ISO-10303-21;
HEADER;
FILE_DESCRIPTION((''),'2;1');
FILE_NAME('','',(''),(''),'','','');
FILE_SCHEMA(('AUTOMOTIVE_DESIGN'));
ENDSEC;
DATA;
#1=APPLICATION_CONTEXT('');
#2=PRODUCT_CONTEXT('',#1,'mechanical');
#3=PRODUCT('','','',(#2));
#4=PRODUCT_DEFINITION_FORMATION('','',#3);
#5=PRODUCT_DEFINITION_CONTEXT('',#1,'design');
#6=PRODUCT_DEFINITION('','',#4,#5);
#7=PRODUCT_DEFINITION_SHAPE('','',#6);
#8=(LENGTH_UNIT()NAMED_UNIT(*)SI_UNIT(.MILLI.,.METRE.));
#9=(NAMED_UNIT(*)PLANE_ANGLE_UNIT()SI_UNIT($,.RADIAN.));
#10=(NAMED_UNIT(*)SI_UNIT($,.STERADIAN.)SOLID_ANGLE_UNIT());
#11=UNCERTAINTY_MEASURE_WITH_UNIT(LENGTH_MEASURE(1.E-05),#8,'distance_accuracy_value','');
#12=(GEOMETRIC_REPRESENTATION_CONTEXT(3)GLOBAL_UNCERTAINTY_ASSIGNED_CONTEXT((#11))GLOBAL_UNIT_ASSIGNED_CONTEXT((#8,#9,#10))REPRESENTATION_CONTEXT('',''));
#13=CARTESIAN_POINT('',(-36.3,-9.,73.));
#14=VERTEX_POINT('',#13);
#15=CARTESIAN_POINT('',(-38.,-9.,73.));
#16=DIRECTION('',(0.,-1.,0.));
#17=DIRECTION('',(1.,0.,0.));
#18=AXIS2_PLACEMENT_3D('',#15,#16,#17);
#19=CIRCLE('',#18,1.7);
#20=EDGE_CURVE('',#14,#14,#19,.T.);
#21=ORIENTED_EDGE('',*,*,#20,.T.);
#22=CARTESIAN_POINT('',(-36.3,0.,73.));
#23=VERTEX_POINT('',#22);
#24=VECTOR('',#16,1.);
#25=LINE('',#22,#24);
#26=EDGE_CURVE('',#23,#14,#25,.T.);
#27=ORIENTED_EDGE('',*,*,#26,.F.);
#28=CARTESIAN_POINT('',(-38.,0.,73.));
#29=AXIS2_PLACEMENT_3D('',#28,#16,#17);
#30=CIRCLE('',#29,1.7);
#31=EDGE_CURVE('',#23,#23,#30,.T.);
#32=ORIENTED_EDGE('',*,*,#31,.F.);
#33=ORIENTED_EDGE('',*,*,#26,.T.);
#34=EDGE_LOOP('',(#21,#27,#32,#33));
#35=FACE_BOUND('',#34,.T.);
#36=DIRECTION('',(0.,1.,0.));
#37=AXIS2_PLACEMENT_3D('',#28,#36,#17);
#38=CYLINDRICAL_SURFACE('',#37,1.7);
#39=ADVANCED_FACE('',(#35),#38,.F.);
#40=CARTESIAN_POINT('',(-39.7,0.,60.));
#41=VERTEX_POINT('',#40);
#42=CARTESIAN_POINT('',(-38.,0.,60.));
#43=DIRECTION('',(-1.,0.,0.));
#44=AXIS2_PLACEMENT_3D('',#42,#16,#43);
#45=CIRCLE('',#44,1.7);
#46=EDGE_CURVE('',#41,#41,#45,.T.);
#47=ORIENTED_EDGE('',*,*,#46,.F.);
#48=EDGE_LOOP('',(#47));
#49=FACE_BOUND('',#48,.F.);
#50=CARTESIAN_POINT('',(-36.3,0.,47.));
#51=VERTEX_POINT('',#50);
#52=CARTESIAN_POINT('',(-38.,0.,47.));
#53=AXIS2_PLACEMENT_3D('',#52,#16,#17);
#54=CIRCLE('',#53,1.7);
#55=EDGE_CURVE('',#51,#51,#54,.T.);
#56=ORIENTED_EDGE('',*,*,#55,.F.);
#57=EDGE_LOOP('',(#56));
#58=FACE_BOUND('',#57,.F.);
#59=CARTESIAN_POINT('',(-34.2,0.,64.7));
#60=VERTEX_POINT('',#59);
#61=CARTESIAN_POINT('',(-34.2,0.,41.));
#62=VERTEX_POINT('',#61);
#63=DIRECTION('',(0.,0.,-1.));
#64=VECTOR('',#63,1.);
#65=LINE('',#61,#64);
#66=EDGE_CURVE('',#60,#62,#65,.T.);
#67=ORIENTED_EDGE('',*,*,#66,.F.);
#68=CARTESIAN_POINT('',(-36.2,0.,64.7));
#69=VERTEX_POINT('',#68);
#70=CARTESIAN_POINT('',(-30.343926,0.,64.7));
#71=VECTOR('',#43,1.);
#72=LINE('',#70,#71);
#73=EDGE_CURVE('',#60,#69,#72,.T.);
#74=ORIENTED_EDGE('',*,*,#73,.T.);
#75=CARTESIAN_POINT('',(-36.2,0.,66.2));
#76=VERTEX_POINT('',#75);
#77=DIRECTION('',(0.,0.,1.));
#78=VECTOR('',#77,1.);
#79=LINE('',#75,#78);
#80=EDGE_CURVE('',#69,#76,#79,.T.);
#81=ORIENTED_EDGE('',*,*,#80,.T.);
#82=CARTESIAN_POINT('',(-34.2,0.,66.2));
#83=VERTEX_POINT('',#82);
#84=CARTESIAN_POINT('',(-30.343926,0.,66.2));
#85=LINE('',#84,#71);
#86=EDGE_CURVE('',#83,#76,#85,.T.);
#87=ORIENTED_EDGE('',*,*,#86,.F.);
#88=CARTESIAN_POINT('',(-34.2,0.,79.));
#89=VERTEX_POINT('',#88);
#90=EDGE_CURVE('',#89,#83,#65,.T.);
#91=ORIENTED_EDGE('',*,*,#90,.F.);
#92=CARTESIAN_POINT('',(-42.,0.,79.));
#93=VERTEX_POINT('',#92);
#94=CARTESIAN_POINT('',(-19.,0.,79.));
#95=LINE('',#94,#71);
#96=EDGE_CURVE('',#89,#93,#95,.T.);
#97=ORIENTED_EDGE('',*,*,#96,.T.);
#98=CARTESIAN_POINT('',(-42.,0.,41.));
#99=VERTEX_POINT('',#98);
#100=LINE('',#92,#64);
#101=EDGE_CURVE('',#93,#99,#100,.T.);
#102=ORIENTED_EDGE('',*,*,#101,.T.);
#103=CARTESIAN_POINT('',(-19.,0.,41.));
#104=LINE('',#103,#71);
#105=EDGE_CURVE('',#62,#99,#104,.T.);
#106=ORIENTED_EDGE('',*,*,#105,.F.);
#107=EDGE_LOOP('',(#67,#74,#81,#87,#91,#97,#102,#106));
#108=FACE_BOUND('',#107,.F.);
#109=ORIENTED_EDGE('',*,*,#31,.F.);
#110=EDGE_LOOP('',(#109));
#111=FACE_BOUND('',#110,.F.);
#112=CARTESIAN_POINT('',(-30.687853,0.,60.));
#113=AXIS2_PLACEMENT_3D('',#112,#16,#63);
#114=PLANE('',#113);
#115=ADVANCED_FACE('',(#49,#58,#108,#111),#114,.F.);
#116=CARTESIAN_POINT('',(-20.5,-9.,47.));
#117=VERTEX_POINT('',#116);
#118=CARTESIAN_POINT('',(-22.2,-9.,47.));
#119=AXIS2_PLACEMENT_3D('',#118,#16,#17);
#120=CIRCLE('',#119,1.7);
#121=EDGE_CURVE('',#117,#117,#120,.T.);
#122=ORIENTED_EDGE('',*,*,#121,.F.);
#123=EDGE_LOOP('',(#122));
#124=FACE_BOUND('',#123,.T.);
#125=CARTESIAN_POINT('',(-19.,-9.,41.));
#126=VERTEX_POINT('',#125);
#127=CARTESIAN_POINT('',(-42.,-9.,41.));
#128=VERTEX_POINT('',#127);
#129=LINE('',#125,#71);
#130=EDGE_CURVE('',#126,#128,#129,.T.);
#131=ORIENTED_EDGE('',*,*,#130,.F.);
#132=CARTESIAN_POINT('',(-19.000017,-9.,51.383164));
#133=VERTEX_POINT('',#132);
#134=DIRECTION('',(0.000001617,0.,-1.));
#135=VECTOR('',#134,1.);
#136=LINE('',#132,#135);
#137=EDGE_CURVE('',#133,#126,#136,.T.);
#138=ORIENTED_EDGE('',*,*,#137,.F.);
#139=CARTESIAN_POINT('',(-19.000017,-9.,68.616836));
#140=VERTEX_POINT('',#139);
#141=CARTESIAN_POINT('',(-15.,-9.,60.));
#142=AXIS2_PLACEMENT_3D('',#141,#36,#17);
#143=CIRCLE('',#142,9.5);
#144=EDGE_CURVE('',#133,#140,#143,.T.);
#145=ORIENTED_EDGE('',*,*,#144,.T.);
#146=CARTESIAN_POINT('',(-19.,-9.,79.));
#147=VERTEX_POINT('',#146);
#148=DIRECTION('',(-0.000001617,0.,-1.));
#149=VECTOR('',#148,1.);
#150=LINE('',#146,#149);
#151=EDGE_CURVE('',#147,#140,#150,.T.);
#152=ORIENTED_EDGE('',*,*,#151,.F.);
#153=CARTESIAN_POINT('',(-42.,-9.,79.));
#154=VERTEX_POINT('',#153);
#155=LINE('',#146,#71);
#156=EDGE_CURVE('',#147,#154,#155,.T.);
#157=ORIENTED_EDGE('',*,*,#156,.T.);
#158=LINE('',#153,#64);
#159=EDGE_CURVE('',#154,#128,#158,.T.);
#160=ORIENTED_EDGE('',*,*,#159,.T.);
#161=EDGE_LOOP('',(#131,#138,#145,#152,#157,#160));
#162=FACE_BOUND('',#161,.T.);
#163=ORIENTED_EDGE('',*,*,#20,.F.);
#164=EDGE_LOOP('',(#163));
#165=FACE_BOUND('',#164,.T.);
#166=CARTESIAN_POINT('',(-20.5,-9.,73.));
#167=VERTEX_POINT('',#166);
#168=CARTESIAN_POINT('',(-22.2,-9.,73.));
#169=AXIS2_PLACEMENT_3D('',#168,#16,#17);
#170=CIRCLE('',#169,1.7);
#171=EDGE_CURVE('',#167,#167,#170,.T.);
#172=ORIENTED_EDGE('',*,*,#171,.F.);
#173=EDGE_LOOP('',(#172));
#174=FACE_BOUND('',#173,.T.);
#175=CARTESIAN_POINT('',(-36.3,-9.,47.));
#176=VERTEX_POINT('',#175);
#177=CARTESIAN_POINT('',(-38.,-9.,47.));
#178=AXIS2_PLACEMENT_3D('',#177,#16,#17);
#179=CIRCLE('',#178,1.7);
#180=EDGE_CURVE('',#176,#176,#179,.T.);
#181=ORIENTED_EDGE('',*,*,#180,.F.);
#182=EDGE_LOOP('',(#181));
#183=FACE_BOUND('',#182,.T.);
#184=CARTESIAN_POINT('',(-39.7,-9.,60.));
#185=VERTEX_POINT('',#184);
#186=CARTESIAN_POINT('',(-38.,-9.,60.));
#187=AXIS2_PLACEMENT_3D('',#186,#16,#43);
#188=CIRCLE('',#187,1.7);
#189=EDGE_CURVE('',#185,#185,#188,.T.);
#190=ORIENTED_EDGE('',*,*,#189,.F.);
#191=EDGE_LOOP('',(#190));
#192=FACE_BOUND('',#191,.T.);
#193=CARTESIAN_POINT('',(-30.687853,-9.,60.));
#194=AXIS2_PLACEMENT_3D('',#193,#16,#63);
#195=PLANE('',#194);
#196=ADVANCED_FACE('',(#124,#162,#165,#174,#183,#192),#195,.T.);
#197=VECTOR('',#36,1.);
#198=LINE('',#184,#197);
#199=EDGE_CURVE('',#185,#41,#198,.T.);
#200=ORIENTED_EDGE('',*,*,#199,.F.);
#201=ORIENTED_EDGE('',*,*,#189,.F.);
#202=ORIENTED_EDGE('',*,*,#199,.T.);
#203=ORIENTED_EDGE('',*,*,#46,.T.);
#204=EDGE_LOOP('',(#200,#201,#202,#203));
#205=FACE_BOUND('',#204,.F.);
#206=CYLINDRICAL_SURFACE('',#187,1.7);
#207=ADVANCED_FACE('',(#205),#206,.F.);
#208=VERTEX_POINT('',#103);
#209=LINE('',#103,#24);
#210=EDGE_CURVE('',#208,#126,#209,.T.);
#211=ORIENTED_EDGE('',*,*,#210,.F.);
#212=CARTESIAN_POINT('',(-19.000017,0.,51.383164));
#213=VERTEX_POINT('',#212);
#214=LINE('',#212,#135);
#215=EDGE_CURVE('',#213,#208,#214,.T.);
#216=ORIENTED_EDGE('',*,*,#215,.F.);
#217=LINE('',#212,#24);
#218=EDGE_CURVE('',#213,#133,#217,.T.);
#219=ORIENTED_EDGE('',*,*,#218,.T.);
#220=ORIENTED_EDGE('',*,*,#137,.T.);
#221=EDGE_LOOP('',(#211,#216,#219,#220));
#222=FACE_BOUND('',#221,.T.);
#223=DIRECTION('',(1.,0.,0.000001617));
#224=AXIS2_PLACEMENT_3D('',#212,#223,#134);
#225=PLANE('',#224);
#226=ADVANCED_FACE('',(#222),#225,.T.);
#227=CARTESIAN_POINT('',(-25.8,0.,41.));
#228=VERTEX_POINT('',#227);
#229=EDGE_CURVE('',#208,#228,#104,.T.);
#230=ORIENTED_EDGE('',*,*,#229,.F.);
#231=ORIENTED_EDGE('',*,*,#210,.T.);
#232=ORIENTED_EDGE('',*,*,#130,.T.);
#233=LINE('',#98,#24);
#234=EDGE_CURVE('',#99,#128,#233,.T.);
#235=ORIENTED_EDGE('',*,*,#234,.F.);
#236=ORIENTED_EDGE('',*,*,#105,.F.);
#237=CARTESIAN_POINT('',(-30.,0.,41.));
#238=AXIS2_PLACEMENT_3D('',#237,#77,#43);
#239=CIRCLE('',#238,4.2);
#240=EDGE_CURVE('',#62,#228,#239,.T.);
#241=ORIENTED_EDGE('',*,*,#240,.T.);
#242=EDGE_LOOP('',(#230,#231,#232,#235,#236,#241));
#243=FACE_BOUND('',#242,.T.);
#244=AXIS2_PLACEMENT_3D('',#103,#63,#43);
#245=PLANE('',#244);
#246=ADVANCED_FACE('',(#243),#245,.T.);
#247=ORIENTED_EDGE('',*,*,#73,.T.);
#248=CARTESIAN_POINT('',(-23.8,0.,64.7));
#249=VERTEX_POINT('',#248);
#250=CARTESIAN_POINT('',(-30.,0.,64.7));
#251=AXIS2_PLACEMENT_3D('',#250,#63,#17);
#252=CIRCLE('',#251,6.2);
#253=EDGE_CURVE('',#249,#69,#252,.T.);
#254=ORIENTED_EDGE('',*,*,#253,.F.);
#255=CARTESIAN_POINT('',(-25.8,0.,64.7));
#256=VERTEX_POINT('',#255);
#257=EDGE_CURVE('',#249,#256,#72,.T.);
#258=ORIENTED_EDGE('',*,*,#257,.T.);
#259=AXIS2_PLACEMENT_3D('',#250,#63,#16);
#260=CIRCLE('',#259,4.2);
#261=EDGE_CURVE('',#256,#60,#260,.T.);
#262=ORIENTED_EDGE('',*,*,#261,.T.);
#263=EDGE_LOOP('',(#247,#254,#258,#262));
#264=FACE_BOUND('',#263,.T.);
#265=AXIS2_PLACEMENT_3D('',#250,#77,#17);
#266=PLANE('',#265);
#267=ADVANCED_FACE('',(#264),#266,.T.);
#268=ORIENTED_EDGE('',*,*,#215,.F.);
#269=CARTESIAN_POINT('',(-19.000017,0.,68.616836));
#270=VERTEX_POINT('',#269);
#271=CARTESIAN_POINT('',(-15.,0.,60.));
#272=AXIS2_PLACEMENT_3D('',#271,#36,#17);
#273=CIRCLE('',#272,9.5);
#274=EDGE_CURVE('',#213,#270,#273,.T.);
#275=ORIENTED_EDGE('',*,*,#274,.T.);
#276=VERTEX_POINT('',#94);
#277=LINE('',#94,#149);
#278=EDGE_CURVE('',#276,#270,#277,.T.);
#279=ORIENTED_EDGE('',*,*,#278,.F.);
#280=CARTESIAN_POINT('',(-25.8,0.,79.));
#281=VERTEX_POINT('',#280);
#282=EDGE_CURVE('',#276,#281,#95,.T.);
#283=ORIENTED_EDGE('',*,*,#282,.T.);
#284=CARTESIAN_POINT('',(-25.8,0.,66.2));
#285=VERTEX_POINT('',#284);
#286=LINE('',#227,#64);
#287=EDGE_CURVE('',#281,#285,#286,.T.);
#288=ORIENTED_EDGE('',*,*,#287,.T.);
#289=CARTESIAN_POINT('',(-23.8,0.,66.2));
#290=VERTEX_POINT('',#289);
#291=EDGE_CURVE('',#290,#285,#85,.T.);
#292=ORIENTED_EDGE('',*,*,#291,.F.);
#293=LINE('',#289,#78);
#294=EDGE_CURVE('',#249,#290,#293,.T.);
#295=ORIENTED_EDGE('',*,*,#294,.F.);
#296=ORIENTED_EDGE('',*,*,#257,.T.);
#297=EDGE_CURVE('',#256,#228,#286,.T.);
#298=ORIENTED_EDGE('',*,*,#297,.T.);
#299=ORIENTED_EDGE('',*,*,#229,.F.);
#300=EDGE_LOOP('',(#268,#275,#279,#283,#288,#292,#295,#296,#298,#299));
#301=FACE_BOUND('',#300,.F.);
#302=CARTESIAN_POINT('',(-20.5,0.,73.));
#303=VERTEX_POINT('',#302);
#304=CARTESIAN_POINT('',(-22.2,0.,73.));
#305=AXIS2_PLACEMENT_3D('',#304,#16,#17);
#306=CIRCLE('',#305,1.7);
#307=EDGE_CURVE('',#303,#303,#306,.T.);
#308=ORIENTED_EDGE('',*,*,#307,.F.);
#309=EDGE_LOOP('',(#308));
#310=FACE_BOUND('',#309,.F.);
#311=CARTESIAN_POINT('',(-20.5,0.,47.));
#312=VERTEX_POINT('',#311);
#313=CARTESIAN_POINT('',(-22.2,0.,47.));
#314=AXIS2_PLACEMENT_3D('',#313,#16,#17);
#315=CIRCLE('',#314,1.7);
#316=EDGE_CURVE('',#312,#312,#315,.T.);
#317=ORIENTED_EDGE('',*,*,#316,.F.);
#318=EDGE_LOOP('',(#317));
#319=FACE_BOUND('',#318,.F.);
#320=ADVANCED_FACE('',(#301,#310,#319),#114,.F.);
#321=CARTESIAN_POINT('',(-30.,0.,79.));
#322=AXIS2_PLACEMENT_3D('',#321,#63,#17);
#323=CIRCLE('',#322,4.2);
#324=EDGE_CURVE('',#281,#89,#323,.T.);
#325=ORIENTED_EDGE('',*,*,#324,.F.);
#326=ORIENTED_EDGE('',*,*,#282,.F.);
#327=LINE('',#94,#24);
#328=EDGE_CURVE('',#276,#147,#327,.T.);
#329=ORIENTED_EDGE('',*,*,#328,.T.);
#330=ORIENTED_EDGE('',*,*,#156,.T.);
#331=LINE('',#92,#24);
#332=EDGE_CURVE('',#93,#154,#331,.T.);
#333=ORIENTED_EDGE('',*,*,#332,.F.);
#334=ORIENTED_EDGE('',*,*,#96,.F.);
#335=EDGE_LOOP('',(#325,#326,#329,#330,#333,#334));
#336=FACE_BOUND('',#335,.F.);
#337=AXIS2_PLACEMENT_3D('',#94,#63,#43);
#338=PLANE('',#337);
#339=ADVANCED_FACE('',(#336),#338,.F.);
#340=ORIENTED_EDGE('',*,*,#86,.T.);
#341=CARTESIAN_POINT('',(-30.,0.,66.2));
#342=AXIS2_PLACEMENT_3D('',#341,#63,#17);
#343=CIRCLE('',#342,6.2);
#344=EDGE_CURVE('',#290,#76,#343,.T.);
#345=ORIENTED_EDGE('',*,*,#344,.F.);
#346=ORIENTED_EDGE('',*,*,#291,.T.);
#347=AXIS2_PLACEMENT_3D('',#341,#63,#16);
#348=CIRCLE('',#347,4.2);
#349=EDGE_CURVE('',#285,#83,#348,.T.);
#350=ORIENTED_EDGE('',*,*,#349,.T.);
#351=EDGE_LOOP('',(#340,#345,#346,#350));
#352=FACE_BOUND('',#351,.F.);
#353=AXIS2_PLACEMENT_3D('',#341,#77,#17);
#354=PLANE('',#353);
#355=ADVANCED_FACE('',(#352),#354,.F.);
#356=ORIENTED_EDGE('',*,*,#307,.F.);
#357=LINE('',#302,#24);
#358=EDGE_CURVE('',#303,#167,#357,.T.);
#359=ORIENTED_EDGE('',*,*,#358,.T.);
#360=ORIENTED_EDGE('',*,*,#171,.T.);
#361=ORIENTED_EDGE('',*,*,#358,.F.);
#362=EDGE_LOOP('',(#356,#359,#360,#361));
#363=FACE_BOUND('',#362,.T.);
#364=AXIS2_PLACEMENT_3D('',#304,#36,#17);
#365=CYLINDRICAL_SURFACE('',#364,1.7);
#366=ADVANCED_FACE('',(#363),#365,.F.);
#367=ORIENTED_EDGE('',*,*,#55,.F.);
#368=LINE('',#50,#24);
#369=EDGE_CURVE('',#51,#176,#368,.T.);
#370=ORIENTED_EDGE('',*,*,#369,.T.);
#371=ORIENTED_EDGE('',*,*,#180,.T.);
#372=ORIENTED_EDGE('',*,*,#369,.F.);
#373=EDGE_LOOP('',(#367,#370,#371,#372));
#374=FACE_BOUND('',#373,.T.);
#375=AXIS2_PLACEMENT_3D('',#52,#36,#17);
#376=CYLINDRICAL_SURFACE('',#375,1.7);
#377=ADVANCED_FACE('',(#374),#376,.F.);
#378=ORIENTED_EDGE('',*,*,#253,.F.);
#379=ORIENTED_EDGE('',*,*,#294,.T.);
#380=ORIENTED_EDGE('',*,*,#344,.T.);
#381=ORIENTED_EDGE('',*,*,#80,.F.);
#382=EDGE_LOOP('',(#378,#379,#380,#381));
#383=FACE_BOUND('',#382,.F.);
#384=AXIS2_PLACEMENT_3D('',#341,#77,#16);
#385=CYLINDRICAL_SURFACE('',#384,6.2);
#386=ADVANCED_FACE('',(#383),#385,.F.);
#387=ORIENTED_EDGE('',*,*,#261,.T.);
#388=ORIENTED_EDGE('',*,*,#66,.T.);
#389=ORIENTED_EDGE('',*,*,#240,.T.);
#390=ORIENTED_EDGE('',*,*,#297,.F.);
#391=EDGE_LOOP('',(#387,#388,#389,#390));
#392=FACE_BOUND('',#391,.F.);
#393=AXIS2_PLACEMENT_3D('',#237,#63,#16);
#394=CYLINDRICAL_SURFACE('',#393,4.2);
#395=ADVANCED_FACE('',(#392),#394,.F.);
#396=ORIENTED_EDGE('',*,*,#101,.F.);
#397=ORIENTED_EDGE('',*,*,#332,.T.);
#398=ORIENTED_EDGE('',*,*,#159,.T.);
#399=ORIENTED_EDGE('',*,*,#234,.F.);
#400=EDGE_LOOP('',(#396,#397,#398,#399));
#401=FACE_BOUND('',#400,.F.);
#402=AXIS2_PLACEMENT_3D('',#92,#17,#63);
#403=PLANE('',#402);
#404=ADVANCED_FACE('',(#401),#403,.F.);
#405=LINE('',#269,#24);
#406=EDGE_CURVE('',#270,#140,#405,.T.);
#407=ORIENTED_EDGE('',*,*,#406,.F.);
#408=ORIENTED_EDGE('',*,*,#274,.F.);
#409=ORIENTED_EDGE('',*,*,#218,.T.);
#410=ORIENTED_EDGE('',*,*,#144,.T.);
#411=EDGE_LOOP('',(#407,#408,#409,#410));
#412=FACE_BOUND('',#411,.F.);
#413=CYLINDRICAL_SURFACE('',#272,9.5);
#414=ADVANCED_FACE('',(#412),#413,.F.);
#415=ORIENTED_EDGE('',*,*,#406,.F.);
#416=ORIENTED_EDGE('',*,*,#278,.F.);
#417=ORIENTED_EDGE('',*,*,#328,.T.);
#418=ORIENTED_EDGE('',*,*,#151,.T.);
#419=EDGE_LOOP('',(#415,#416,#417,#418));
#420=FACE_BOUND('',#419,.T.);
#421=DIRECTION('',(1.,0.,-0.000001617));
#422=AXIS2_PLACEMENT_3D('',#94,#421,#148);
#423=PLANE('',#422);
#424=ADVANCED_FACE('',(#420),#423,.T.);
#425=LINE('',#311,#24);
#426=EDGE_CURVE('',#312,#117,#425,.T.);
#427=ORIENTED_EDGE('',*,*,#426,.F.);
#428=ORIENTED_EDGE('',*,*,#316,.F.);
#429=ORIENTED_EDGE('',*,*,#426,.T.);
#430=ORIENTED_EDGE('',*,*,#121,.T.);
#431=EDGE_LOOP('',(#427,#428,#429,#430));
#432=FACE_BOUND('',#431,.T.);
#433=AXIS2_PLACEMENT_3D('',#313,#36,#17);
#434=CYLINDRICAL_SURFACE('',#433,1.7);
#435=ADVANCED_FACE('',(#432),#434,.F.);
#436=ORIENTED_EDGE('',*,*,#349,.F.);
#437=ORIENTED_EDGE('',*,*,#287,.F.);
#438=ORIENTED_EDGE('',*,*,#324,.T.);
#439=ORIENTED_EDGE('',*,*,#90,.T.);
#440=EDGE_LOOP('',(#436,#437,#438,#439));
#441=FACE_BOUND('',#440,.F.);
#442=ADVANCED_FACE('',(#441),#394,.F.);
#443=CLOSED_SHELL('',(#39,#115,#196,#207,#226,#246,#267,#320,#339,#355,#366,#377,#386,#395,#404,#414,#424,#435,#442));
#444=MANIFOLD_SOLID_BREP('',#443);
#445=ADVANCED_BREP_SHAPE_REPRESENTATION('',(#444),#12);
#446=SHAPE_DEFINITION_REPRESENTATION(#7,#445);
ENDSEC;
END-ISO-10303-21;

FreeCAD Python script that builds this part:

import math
import FreeCAD as App
import Part
import Sketcher
from FreeCAD import Vector

doc = App.newDocument("Part")
body = doc.addObject("PartDesign::Body", "Body")

# Sketch on XZ plane
sketch1 = doc.addObject("Sketcher::SketchObject", "Sketch")
body.addObject(sketch1)
sketch1.AttachmentSupport = (doc.XZ_Plane, [""])
sketch1.MapMode = "FlatFace"
sketch1.addGeometry(Part.LineSegment(Vector(-19, 79, 0), Vector(-42, 79, 0)), False)
sketch1.addGeometry(Part.LineSegment(Vector(-42, 79, 0), Vector(-42, 41, 0)), False)
sketch1.addGeometry(Part.LineSegment(Vector(-42, 41, 0), Vector(-19, 41, 0)), False)
sketch1.addGeometry(Part.LineSegment(Vector(-19, 41, 0), Vector(-19, 51.4, 0)), False)
sketch1.addGeometry(Part.ArcOfCircle(Part.Circle(Vector(-15, 60, 0), Vector(0, 0, 1), 9.5), math.radians(115), math.radians(245)), False)
sketch1.addGeometry(Part.LineSegment(Vector(-19, 68.6, 0), Vector(-19, 79, 0)), False)
sketch1.addGeometry(Part.Circle(Vector(-38, 47, 0), Vector(0, 0, 1), 1.7), False)
sketch1.addGeometry(Part.Circle(Vector(-22.2, 47, 0), Vector(0, 0, 1), 1.7), False)
sketch1.addGeometry(Part.Circle(Vector(-38, 73, 0), Vector(0, 0, 1), 1.7), False)
sketch1.addGeometry(Part.Circle(Vector(-22.2, 73, 0), Vector(0, 0, 1), 1.7), False)
sketch1.addConstraint(Sketcher.Constraint("Coincident", 0, 2, 1, 1))
sketch1.addConstraint(Sketcher.Constraint("Coincident", 1, 2, 2, 1))
sketch1.addConstraint(Sketcher.Constraint("Coincident", 2, 2, 3, 1))
sketch1.addConstraint(Sketcher.Constraint("Coincident", 3, 2, 4, 2))
sketch1.addConstraint(Sketcher.Constraint("Coincident", 4, 1, 5, 1))
sketch1.addConstraint(Sketcher.Constraint("Coincident", 5, 2, 0, 1))
sketch1.addConstraint(Sketcher.Constraint("Horizontal", 0))
sketch1.addConstraint(Sketcher.Constraint("Vertical", 1))
sketch1.addConstraint(Sketcher.Constraint("Horizontal", 2))
sketch1.addConstraint(Sketcher.Constraint("Vertical", 3))
sketch1.addConstraint(Sketcher.Constraint("Vertical", 5))
sketch1.addConstraint(Sketcher.Constraint("Equal", 6, 7))
sketch1.addConstraint(Sketcher.Constraint("Equal", 7, 8))
sketch1.addConstraint(Sketcher.Constraint("Equal", 8, 9))
sketch1.addConstraint(Sketcher.Constraint("Horizontal", 6, 3, 7, 3))
sketch1.addConstraint(Sketcher.Constraint("Horizontal", 8, 3, 9, 3))
sketch1.addConstraint(Sketcher.Constraint("Vertical", 6, 3, 8, 3))
sketch1.addConstraint(Sketcher.Constraint("Vertical", 7, 3, 9, 3))
sketch1.addConstraint(Sketcher.Constraint("Vertical", 3, 2, 4, 1))
sketch1.addConstraint(Sketcher.Constraint("Equal", 3, 5))
sketch1.addConstraint(Sketcher.Constraint("Diameter", 6, 3.4))
sketch1.addConstraint(Sketcher.Constraint("Radius", 4, 9.5))
sketch1.addConstraint(Sketcher.Constraint("DistanceX", 0, 2, 0, 1, 23.0))
sketch1.addConstraint(Sketcher.Constraint("DistanceY", 1, 2, 1, 1, 38.0))
sketch1.addConstraint(Sketcher.Constraint("DistanceX", 4, 3, -1, 1, 15.0))
sketch1.addConstraint(Sketcher.Constraint("DistanceY", -1, 1, 4, 3, 60.0))
sketch1.addConstraint(Sketcher.Constraint("DistanceX", 6, 3, -1, 1, 38.0))
sketch1.addConstraint(Sketcher.Constraint("DistanceY", -1, 1, 6, 3, 47.0))
sketch1.addConstraint(Sketcher.Constraint("DistanceY", -1, 1, 8, 3, 73.0))
sketch1.addConstraint(Sketcher.Constraint("DistanceX", 0, 2, -1, 1, 42.0))
sketch1.addConstraint(Sketcher.Constraint("DistanceX", 7, 3, -1, 1, 22.2))
pad1 = doc.addObject("PartDesign::Pad", "Pad")
body.addObject(pad1)
pad1.Profile = sketch1
pad1.Length = 9

# Sketch on XY plane
sketch2 = doc.addObject("Sketcher::SketchObject", "Sketch001")
body.addObject(sketch2)
sketch2.AttachmentSupport = (doc.XY_Plane, [""])
sketch2.MapMode = "FlatFace"
sketch2.AttachmentOffset = App.Placement(Vector(0, 0, 41), App.Rotation())
sketch2.addGeometry(Part.Circle(Vector(-30, 0, 0), Vector(0, 0, 1), 4.2), False)
sketch2.addConstraint(Sketcher.Constraint("PointOnObject", 0, 3, -1))
sketch2.addConstraint(Sketcher.Constraint("Diameter", 0, 8.4))
sketch2.addConstraint(Sketcher.Constraint("DistanceX", 0, 3, -1, 1, 30.0))
pocket1 = doc.addObject("PartDesign::Pocket", "Pocket")
body.addObject(pocket1)
pocket1.Profile = sketch2
pocket1.Type = "ThroughAll"
pocket1.Reversed = True

# Sketch on XY plane
sketch3 = doc.addObject("Sketcher::SketchObject", "Sketch002")
body.addObject(sketch3)
sketch3.AttachmentSupport = (doc.XY_Plane, [""])
sketch3.MapMode = "FlatFace"
sketch3.AttachmentOffset = App.Placement(Vector(0, 0, 66.2), App.Rotation())
sketch3.addGeometry(Part.Circle(Vector(-30, 0, 0), Vector(0, 0, 1), 6), False)
sketch3.addConstraint(Sketcher.Constraint("PointOnObject", 0, 3, -1))
sketch3.addConstraint(Sketcher.Constraint("Diameter", 0, 12.4))
sketch3.addConstraint(Sketcher.Constraint("DistanceX", 0, 3, -1, 1, 30.0))
pocket2 = doc.addObject("PartDesign::Pocket", "Pocket001")
body.addObject(pocket2)
pocket2.Profile = sketch3
pocket2.Length = 1.5

# Sketch on XZ plane
sketch4 = doc.addObject("Sketcher::SketchObject", "Sketch003")
body.addObject(sketch4)
sketch4.AttachmentSupport = (doc.XZ_Plane, [""])
sketch4.MapMode = "FlatFace"
sketch4.AttachmentOffset = App.Placement(Vector(0, 0, 9), App.Rotation())
sketch4.addGeometry(Part.Circle(Vector(-38, 60, 0), Vector(0, 0, 1), 1.7), False)
sketch4.addConstraint(Sketcher.Constraint("Diameter", 0, 3.4))
sketch4.addConstraint(Sketcher.Constraint("DistanceX", 0, 3, -1, 1, 38.0))
sketch4.addConstraint(Sketcher.Constraint("DistanceY", -1, 1, 0, 3, 60.0))
pocket3 = doc.addObject("PartDesign::Pocket", "Pocket002")
body.addObject(pocket3)
pocket3.Profile = sketch4
pocket3.Type = "ThroughAll"

doc.recompute()
